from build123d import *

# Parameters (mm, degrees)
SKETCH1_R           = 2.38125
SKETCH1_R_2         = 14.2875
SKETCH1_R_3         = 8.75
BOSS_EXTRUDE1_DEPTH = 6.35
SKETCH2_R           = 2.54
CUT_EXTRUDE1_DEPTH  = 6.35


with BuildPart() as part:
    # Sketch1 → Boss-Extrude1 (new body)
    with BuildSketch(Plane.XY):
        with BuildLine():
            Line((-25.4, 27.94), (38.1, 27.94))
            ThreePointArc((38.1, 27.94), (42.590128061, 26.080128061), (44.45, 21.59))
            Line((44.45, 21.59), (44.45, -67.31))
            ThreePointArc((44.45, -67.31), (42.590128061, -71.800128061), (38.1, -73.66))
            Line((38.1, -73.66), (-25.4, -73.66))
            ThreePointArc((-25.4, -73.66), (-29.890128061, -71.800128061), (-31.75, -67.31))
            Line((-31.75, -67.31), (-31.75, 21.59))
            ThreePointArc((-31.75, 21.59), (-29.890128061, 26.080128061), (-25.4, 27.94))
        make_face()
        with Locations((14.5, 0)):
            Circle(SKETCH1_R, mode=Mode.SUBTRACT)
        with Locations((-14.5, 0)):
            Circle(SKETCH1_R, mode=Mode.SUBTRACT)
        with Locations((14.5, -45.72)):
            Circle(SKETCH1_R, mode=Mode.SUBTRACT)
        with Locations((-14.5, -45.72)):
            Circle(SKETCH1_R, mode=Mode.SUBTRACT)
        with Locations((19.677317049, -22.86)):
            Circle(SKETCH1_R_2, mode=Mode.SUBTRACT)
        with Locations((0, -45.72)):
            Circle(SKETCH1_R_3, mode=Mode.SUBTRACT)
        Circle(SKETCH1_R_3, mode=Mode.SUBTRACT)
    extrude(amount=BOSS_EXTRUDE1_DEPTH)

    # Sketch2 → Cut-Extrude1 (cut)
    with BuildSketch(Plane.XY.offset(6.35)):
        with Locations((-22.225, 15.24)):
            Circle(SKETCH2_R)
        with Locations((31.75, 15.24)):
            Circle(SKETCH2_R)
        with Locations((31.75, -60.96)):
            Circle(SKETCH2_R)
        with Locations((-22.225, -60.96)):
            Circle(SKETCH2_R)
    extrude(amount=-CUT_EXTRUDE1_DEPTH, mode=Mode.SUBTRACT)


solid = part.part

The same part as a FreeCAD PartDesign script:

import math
import FreeCAD as App
import Part
import Sketcher
from FreeCAD import Vector
Q = App.Units.Quantity

doc = App.newDocument("Part")
body = doc.addObject("PartDesign::Body", "Body")

# Sketch on XY plane
sketch1 = doc.addObject("Sketcher::SketchObject", "Sketch")
body.addObject(sketch1)
sketch1.AttachmentSupport = (doc.XY_Plane, [""])
sketch1.MapMode = "FlatFace"
sketch1.addGeometry([
    Part.LineSegment(Vector(38.1, 27.9, 0), Vector(-25.4, 27.9, 0)),  # 0
    Part.ArcOfCircle(Part.Circle(Vector(-25.4, 21.6, 0), Vector(0, 0, 1), 6.3), math.radians(90), math.radians(180)),  # 1
    Part.LineSegment(Vector(-31.8, 21.6, 0), Vector(-31.8, -67.3, 0)),  # 2
    Part.ArcOfCircle(Part.Circle(Vector(-25.4, -67.3, 0), Vector(0, 0, 1), 6.3), math.radians(180), math.radians(270)),  # 3
    Part.LineSegment(Vector(-25.4, -73.7, 0), Vector(38.1, -73.7, 0)),  # 4
    Part.ArcOfCircle(Part.Circle(Vector(38.1, -67.3, 0), Vector(0, 0, 1), 6.3), math.radians(-90), math.radians(0)),  # 5
    Part.LineSegment(Vector(44.5, -67.3, 0), Vector(44.5, 21.6, 0)),  # 6
    Part.ArcOfCircle(Part.Circle(Vector(38.1, 21.6, 0), Vector(0, 0, 1), 6.3), math.radians(0), math.radians(90)),  # 7
    Part.Circle(Vector(14.5, -45.7, 0), Vector(0, 0, 1), 2.4),  # 8
    Part.Circle(Vector(0, -45.7, 0), Vector(0, 0, 1), 8.8),  # 9
    Part.Circle(Vector(-14.5, -45.7, 0), Vector(0, 0, 1), 2.4),  # 10
    Part.Circle(Vector(19.7, -22.9, 0), Vector(0, 0, 1), 14.3),  # 11
    Part.Circle(Vector(14.5, 0, 0), Vector(0, 0, 1), 2.4),  # 12
    Part.Circle(Vector(0, 0, 0), Vector(0, 0, 1), 8.8),  # 13
    Part.Circle(Vector(-14.5, 0, 0), Vector(0, 0, 1), 2.4),  # 14
], False)
sketch1.addConstraint([
    Sketcher.Constraint("Tangent", 0, 2, 1, 1),
    Sketcher.Constraint("Tangent", 1, 2, 2, 1),
    Sketcher.Constraint("Tangent", 2, 2, 3, 1),
    Sketcher.Constraint("Tangent", 3, 2, 4, 1),
    Sketcher.Constraint("Tangent", 4, 2, 5, 1),
    Sketcher.Constraint("Tangent", 5, 2, 6, 1),
    Sketcher.Constraint("Tangent", 6, 2, 7, 1),
    Sketcher.Constraint("Tangent", 7, 2, 0, 1),
    Sketcher.Constraint("Horizontal", 0),
    Sketcher.Constraint("Vertical", 2),
    Sketcher.Constraint("Horizontal", 4),
    Sketcher.Constraint("Vertical", 6),
    Sketcher.Constraint("Coincident", 13, 3, -1, 1),
    Sketcher.Constraint("Equal", 1, 3),
    Sketcher.Constraint("Equal", 3, 5),
    Sketcher.Constraint("Equal", 5, 7),
    Sketcher.Constraint("Equal", 8, 10),
    Sketcher.Constraint("Equal", 10, 12),
    Sketcher.Constraint("Equal", 9, 13),
    Sketcher.Constraint("Equal", 12, 14),
    Sketcher.Constraint("Symmetric", 12, 3, 14, 3, -1, 1),
    Sketcher.Constraint("Symmetric", 8, 3, 10, 3, -2),
    Sketcher.Constraint("PointOnObject", 9, 3, -2),
    Sketcher.Constraint("PointOnObject", 12, 3, -1),
    Sketcher.Constraint("Horizontal", 8, 3, 9, 3),
    Sketcher.Constraint("Vertical", 8, 3, 12, 3),
    Sketcher.Constraint("Radius", 1, Q("0.25 in")),
    Sketcher.Constraint("Diameter", 8, Q("0.1875 in")),
    Sketcher.Constraint("Diameter", 11, Q("1.125 in")),
    Sketcher.Constraint("DistanceX", 0, 2, 0, 1, Q("2.5 in")),
    Sketcher.Constraint("DistanceY", 2, 2, 2, 1, Q("3.5 in")),
    Sketcher.Constraint("DistanceX", 1, 3, -1, 1, Q("1 in")),
    Sketcher.Constraint("DistanceY", 4, 2, 11, 3, Q("2 in")),
    Sketcher.Constraint("DistanceY", 8, 3, -1, 1, Q("1.8 in")),
    Sketcher.Constraint("DistanceY", 11, 3, -1, 1, Q("0.9 in")),
    Sketcher.Constraint("Diameter", 9, 17.5),
    Sketcher.Constraint("DistanceX", -1, 1, 8, 3, 14.5),
    Sketcher.Constraint("DistanceX", -1, 1, 11, 3, 19.677317),
])
pad1 = doc.addObject("PartDesign::Pad", "Pad")
body.addObject(pad1)
pad1.Profile = sketch1
pad1.Length = Q("0.25 in")

# Sketch on XY plane
sketch2 = doc.addObject("Sketcher::SketchObject", "Sketch001")
body.addObject(sketch2)
sketch2.AttachmentSupport = (doc.XY_Plane, [""])
sketch2.MapMode = "FlatFace"
sketch2.AttachmentOffset = App.Placement(Vector(0, 0, 0.25 * 25.4), App.Rotation())
sketch2.addGeometry([
    Part.Circle(Vector(-22.2, 15.2, 0), Vector(0, 0, 1), 2.5),
    Part.Circle(Vector(31.8, 15.2, 0), Vector(0, 0, 1), 2.5),
    Part.Circle(Vector(31.8, -61, 0), Vector(0, 0, 1), 2.5),
    Part.Circle(Vector(-22.2, -61, 0), Vector(0, 0, 1), 2.5),
], False)
sketch2.addConstraint([
    Sketcher.Constraint("Equal", 0, 1),
    Sketcher.Constraint("Equal", 1, 2),
    Sketcher.Constraint("Equal", 2, 3),
    Sketcher.Constraint("Horizontal", 0, 3, 1, 3),
    Sketcher.Constraint("Horizontal", 2, 3, 3, 3),
    Sketcher.Constraint("Vertical", 1, 3, 2, 3),
    Sketcher.Constraint("Vertical", 0, 3, 3, 3),
    Sketcher.Constraint("Diameter", 0, Q("0.2 in")),
    Sketcher.Constraint("DistanceY", 2, 3, 1, 3, Q("3 in")),
    Sketcher.Constraint("DistanceY", -1, 1, 0, 3, Q("0.6 in")),
    Sketcher.Constraint("DistanceX", -1, 1, 1, 3, Q("1.25 in")),
    Sketcher.Constraint("DistanceX", 0, 3, -1, 1, Q("0.875 in")),
])
pocket1 = doc.addObject("PartDesign::Pocket", "Pocket")
body.addObject(pocket1)
pocket1.Profile = sketch2
pocket1.Length = Q("0.25 in")

doc.recompute()
